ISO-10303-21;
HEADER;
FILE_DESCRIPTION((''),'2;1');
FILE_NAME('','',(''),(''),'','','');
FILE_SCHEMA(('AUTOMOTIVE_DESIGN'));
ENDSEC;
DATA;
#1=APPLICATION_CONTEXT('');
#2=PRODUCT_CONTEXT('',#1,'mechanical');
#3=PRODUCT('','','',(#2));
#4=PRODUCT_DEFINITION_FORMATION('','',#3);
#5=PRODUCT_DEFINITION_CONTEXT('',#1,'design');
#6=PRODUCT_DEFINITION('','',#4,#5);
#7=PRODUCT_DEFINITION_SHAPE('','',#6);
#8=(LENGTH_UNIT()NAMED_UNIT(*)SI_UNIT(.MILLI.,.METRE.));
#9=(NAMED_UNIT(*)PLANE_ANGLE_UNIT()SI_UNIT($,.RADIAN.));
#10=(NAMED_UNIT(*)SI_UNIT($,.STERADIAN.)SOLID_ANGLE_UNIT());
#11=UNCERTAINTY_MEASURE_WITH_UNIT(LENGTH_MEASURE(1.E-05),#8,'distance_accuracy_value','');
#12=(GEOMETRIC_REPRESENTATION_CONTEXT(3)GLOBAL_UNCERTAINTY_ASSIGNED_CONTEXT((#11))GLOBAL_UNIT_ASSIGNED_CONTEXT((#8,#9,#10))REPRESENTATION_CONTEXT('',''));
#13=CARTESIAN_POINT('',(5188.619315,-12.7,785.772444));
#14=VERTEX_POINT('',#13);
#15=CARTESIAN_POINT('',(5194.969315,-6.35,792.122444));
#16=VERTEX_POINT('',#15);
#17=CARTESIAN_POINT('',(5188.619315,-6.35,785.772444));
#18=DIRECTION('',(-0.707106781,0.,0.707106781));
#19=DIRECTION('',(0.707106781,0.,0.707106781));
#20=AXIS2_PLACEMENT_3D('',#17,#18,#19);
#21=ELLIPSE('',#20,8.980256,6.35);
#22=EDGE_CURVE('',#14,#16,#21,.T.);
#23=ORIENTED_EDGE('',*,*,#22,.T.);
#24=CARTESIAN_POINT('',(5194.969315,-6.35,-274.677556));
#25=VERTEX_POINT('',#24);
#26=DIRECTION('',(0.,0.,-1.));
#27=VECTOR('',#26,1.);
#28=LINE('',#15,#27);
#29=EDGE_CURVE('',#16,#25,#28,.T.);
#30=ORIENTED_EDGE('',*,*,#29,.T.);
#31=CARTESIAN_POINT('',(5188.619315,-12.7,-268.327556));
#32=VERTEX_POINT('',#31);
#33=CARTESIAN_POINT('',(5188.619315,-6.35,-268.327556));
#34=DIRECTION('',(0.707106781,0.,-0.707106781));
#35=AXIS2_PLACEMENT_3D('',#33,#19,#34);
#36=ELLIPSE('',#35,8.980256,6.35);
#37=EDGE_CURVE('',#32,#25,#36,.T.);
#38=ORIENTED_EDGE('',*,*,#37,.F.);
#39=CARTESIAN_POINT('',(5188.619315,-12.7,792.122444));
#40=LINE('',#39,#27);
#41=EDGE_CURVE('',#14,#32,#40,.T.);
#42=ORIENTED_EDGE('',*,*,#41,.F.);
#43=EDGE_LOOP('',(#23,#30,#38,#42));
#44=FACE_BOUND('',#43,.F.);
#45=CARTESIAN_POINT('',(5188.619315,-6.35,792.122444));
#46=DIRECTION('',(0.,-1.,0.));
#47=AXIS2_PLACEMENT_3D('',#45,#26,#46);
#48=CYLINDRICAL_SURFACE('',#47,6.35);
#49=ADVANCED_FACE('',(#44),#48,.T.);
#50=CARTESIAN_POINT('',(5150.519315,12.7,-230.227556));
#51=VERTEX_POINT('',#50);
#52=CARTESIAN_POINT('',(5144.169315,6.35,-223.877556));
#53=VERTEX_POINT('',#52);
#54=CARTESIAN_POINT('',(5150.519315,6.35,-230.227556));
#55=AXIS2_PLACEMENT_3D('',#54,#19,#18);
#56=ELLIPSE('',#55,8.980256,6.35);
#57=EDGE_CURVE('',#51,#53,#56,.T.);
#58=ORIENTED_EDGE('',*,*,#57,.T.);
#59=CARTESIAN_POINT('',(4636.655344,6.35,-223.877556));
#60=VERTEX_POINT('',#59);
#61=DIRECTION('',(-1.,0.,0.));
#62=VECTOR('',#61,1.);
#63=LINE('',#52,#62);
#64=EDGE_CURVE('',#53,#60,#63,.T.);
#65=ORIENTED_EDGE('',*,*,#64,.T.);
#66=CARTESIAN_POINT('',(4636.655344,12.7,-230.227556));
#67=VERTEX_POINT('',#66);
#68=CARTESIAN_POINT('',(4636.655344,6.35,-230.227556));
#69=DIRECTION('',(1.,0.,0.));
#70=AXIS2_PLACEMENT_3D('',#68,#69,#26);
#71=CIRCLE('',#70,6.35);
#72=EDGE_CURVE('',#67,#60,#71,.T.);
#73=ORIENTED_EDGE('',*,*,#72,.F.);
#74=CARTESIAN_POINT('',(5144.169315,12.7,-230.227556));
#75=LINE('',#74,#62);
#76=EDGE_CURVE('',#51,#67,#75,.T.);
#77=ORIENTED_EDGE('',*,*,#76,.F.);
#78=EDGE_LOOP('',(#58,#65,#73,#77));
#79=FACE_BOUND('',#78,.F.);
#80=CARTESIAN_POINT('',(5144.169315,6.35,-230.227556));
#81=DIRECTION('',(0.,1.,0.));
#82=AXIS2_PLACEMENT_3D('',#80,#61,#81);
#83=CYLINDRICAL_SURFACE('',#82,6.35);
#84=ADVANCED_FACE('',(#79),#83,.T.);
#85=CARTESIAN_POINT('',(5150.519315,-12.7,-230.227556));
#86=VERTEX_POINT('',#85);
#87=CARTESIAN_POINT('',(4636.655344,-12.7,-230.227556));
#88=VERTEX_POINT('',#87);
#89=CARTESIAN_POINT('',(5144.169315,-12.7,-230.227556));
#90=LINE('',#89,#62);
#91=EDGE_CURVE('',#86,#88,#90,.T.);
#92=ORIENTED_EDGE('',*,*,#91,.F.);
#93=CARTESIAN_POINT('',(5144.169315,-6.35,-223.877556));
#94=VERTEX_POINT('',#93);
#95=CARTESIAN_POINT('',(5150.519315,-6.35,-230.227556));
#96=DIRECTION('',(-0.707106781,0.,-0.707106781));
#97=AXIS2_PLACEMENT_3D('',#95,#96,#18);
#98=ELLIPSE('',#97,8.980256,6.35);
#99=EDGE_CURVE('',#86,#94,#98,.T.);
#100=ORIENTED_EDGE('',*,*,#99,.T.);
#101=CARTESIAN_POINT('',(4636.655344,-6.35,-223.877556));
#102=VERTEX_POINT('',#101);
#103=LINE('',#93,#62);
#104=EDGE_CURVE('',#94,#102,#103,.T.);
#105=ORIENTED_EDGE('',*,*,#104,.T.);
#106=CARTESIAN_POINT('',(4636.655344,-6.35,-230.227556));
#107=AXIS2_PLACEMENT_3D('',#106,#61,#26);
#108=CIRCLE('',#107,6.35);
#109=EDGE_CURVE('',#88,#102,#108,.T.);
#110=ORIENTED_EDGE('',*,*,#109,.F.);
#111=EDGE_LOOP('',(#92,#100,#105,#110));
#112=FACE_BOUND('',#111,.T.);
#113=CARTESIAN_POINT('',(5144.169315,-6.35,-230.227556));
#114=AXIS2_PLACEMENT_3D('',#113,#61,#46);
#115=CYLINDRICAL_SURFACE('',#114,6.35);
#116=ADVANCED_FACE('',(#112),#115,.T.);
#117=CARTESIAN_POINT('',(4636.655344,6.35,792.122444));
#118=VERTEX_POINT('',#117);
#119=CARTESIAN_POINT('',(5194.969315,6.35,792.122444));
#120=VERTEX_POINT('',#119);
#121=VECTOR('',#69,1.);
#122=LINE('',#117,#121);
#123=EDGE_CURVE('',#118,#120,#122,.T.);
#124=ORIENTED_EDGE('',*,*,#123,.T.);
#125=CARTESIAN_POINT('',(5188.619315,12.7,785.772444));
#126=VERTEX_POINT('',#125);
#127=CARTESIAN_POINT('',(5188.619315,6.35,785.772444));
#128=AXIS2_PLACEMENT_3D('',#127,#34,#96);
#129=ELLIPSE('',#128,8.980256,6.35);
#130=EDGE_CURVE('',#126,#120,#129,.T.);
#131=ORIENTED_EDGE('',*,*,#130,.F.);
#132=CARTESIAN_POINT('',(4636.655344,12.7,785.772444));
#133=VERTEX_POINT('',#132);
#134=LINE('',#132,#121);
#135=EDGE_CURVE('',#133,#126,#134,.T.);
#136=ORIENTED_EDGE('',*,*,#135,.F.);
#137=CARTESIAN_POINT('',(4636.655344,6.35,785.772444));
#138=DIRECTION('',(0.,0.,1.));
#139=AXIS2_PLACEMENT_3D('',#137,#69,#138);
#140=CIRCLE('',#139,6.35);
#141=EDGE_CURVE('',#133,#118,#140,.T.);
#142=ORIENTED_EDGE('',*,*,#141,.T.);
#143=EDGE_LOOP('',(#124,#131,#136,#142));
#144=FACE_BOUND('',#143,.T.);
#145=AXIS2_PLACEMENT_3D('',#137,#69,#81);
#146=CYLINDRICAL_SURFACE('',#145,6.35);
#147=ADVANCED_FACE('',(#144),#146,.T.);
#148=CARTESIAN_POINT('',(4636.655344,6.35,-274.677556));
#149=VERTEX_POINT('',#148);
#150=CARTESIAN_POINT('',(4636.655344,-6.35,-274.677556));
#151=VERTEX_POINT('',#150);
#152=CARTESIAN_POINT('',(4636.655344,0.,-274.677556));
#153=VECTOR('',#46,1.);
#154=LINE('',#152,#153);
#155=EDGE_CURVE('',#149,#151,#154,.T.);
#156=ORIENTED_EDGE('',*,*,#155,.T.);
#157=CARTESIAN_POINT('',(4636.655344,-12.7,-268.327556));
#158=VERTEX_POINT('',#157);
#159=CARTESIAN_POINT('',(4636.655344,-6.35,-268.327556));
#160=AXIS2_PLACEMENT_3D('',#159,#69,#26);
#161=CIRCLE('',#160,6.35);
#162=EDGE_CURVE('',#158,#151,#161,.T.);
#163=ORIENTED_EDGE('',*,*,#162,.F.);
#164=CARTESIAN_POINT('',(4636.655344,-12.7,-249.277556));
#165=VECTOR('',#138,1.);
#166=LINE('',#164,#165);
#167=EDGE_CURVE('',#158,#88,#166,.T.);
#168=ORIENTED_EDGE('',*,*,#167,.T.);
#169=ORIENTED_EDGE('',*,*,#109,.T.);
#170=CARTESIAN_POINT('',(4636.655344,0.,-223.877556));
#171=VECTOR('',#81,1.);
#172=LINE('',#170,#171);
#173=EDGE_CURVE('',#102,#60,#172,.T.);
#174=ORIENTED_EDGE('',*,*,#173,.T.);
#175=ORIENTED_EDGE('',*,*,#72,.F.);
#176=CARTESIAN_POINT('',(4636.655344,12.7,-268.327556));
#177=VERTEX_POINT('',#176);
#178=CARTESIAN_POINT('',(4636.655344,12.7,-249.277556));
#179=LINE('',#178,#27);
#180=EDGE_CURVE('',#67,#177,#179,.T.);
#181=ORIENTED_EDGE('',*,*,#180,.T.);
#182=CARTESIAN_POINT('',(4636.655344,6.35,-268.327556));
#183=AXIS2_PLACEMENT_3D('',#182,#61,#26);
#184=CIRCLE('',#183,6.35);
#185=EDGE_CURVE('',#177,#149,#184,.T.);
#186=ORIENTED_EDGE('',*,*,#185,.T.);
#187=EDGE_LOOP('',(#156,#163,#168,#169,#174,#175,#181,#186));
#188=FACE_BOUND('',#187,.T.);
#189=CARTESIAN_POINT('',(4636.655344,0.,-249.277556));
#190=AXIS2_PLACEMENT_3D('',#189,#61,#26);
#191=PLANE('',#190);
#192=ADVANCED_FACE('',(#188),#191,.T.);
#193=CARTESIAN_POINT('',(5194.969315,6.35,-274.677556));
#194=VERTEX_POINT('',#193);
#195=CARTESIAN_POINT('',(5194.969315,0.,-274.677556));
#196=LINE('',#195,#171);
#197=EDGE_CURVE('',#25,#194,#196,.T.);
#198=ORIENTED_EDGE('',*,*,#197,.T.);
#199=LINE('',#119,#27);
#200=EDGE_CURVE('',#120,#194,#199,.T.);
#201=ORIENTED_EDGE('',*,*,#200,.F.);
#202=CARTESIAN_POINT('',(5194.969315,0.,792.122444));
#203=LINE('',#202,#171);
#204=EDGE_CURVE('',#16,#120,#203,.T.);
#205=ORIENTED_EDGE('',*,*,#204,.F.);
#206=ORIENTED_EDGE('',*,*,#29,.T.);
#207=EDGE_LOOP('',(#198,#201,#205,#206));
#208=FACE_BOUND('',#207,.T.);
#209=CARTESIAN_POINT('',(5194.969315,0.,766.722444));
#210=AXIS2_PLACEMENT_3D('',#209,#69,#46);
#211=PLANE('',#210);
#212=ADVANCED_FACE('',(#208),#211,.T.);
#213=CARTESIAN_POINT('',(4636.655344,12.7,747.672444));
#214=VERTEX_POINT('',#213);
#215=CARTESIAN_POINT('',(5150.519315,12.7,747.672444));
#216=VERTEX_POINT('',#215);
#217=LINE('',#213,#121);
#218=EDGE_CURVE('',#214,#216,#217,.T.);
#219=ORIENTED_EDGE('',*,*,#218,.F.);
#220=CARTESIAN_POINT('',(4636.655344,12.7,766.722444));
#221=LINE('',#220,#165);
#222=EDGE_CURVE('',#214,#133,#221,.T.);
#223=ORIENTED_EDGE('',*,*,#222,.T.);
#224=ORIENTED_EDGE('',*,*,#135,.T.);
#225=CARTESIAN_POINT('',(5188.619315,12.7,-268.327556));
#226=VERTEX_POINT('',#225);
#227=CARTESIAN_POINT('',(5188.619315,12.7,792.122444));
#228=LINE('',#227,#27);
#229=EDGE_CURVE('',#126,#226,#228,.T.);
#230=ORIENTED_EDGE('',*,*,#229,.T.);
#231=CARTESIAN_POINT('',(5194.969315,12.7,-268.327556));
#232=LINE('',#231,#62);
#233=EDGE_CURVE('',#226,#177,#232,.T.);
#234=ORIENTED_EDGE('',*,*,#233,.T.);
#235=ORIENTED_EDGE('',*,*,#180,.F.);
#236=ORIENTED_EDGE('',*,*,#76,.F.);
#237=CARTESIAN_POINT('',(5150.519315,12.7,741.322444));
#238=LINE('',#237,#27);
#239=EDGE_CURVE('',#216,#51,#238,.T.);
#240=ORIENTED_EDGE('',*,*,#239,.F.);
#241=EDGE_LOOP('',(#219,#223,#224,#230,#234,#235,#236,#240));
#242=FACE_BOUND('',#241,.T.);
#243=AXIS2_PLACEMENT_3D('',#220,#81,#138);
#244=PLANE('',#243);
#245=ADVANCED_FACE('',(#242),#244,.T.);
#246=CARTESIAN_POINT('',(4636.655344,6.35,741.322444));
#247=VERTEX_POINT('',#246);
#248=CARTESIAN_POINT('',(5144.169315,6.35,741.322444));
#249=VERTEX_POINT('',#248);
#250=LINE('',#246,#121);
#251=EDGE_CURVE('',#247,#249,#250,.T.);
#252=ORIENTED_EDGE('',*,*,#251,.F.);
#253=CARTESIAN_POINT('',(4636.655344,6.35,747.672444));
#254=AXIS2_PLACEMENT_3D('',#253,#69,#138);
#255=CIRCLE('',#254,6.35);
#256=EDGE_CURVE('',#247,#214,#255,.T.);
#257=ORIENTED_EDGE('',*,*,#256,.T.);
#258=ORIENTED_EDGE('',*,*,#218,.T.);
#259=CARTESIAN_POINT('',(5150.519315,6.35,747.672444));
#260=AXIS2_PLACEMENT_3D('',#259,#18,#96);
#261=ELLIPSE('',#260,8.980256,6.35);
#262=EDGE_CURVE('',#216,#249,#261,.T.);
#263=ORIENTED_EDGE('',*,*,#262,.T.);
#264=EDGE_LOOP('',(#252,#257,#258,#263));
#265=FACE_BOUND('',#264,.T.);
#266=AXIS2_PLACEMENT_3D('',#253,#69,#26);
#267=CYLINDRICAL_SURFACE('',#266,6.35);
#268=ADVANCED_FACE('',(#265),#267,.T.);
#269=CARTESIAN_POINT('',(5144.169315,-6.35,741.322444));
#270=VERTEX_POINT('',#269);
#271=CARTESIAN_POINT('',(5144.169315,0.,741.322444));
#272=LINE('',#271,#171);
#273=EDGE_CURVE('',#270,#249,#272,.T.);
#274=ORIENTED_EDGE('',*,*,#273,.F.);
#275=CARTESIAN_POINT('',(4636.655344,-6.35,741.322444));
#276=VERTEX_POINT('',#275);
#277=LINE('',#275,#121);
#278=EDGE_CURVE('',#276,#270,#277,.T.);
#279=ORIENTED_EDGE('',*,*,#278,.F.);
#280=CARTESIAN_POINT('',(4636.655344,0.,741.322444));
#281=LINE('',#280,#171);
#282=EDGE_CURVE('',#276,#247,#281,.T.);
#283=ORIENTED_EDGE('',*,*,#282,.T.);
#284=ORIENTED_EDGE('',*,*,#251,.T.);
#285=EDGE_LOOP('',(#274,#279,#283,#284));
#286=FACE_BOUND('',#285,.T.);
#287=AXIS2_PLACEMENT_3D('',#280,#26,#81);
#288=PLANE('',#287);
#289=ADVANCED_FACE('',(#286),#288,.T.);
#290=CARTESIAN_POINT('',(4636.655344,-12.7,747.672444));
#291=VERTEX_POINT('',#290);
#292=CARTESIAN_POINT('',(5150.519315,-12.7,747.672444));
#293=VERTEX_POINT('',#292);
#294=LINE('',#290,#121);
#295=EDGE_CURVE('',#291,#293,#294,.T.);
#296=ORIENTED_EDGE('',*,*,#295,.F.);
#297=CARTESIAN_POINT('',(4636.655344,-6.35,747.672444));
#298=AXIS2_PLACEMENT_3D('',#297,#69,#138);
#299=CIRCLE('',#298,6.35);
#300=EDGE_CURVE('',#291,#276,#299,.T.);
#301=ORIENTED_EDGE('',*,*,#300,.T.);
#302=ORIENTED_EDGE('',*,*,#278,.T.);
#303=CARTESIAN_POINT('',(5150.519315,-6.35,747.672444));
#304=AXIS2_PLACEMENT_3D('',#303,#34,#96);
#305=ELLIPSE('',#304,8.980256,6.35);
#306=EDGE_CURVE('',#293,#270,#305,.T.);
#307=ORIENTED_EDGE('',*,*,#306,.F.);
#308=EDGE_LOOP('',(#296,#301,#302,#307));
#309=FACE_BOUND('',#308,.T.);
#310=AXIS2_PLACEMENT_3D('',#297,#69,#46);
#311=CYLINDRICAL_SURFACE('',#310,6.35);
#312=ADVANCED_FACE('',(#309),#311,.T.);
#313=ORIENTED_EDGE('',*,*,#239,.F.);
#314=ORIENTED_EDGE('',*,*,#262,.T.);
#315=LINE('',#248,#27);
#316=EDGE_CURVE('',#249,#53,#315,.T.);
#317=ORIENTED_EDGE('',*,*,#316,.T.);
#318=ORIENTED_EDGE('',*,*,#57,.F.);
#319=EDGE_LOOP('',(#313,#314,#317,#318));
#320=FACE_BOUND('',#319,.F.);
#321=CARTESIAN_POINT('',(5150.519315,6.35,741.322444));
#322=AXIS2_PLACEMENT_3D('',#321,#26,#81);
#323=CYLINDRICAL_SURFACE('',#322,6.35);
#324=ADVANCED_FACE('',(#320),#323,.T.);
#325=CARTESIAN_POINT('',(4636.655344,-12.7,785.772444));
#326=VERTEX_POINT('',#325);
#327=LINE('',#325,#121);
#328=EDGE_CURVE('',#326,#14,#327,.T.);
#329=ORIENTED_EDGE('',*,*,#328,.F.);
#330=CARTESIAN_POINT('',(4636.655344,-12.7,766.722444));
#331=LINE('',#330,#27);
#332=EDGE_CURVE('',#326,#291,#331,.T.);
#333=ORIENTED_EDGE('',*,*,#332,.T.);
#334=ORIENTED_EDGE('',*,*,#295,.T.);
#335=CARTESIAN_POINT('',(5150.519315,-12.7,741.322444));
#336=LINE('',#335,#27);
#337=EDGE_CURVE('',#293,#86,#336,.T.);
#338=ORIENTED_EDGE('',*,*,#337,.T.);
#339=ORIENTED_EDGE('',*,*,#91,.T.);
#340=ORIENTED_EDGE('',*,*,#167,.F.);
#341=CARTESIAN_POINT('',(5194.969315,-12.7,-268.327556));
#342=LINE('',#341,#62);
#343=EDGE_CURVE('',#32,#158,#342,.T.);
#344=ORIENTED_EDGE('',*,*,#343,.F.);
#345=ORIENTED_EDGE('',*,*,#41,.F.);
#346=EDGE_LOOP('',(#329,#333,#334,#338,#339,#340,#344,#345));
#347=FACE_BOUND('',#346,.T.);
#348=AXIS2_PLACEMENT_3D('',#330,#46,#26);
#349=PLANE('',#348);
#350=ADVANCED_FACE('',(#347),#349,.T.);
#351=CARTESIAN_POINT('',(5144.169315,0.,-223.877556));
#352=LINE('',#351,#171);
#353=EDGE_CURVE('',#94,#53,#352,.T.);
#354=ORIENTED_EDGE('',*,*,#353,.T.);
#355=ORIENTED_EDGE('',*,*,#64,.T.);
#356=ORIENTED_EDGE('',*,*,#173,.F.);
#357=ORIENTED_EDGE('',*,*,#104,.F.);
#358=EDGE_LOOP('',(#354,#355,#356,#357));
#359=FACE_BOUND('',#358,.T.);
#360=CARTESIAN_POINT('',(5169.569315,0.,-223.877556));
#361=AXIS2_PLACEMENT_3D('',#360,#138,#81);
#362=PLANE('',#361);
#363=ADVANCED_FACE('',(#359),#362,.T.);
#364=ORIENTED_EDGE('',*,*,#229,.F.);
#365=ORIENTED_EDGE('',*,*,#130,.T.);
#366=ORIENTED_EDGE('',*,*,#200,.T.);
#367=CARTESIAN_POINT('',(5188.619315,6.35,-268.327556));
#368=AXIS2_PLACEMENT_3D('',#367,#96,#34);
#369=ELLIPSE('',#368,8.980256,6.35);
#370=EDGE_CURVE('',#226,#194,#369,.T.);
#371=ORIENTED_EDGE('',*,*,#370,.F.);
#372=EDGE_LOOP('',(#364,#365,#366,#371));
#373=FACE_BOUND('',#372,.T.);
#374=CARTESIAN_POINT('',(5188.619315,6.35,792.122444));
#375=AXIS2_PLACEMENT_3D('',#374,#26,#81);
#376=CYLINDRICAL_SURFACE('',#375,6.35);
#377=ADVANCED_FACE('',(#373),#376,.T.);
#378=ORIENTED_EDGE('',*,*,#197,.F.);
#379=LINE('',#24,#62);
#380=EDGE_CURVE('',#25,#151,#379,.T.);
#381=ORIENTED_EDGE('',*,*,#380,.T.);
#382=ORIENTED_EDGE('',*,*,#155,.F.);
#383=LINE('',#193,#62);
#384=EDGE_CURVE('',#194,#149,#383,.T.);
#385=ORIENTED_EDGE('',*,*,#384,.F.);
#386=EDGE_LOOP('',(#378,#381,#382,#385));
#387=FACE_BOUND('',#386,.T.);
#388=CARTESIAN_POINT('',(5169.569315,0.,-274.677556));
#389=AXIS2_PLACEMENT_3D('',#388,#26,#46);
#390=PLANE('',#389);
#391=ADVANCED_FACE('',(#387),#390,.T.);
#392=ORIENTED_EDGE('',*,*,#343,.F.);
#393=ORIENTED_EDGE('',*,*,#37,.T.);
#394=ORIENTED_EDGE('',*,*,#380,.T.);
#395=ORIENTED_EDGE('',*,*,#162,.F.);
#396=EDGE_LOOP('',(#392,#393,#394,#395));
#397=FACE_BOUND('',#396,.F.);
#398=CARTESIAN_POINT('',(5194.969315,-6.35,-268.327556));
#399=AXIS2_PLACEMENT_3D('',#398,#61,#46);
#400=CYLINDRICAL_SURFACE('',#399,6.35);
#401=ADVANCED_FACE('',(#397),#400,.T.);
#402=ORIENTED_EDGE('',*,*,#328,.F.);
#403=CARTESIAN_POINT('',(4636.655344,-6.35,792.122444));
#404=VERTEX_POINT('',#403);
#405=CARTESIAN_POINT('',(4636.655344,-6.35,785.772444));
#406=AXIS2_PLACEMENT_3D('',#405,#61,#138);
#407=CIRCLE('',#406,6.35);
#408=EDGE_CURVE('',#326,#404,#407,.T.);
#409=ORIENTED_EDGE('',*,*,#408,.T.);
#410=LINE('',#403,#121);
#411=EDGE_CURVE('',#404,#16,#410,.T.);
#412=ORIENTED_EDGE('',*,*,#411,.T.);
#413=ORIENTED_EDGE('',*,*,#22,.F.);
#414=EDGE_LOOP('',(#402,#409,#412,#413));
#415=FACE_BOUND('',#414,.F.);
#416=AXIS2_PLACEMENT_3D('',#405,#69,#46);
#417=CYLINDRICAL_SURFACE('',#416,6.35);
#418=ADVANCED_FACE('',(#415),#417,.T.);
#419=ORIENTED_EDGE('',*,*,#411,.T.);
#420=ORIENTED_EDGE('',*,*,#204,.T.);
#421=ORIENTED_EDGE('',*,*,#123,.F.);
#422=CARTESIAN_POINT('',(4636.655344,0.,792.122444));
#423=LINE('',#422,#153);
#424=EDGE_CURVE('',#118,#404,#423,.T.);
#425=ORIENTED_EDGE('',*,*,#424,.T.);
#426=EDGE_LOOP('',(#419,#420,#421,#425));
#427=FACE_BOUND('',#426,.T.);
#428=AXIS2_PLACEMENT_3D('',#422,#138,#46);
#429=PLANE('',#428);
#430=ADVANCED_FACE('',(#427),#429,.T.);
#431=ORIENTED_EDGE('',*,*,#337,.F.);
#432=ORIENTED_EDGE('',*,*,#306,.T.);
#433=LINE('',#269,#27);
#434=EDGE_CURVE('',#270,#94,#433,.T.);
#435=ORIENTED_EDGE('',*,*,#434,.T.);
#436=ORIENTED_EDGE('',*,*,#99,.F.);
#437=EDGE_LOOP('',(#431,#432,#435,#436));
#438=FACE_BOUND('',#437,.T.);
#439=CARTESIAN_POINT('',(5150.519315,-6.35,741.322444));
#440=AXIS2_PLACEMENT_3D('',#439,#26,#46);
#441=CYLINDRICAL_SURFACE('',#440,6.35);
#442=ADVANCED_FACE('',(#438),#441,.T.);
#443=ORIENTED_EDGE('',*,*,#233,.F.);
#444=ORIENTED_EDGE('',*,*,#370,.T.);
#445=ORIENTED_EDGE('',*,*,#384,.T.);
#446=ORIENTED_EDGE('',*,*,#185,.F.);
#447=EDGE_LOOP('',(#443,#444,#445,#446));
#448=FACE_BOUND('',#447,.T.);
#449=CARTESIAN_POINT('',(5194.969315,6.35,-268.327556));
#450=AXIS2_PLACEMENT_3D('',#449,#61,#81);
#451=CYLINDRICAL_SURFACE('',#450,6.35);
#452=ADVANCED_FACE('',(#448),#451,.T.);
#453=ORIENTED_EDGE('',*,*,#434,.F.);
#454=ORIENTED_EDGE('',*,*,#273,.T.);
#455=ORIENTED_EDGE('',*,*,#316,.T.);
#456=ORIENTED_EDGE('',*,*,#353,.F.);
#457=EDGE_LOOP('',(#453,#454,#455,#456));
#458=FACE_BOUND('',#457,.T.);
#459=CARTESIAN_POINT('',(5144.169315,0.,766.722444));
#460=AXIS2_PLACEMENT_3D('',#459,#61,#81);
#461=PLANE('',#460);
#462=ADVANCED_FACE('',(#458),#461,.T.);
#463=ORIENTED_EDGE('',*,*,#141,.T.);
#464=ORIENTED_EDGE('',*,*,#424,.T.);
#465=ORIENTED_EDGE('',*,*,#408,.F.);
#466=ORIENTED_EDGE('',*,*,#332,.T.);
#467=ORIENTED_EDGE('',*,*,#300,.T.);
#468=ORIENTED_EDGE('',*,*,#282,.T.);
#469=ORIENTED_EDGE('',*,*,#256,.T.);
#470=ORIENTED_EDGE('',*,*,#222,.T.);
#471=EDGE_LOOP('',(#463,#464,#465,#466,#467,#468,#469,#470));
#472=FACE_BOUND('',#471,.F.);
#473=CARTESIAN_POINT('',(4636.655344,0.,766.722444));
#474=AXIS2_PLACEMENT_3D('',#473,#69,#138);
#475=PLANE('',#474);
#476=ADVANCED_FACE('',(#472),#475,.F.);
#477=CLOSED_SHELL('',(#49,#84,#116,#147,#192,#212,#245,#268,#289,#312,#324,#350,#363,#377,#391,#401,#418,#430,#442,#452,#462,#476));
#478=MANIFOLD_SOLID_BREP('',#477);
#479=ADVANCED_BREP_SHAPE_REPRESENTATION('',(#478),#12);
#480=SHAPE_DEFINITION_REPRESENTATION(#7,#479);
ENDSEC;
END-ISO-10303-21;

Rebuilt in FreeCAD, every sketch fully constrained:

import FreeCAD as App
import Part
import Sketcher
Q = App.Units.Quantity


def edges_at(feature, points):
    """Names of the edges that pass closest to the given points."""
    edges = feature.Shape.Edges
    near = lambda p: min(range(len(edges)), key=lambda i: edges[i].distToShape(Part.Vertex(*p))[0])
    return sorted({f"Edge{near(p) + 1}" for p in points})


def add_polygon(sketch, points):
    """Adds a closed chain of lines whose ends are joined by coincident constraints."""
    first, n = sketch.GeometryCount, len(points)
    for a, b in zip(points, points[1:] + points[:1]):
        sketch.addGeometry(Part.LineSegment(App.Vector(*a, 0), App.Vector(*b, 0)), False)
    for i in range(n):
        sketch.addConstraint(Sketcher.Constraint("Coincident", first + i, 2, first + (i + 1) % n, 1))

doc = App.newDocument("Part")
body = doc.addObject("PartDesign::Body", "Body")

sketch1 = body.newObject("Sketcher::SketchObject", "Sketch")
sketch1.AttachmentSupport = (doc.getObject("YZ_Plane"), [""])
sketch1.MapMode = "FlatFace"
sketch1.AttachmentOffset = App.Placement(App.Vector(0, 0, 4636.655344), App.Rotation())
add_polygon(sketch1, [(-13, 792), (-13, 741), (13, 741), (13, 792)])
sketch1.addConstraint([
    Sketcher.Constraint("Vertical", 0),
    Sketcher.Constraint("Horizontal", 1),
    Sketcher.Constraint("Vertical", 2),
    Sketcher.Constraint("Horizontal", 3),
    Sketcher.Constraint("DistanceX", 1, 1, 1, 2, Q("1 in")),
    Sketcher.Constraint("DistanceY", 0, 2, 0, 1, Q("2 in")),
    Sketcher.Constraint("DistanceX", 0, 2, -1, 1, Q("0.5 in")),
    Sketcher.Constraint("DistanceY", -1, 1, 0, 2, 741.322444),
])

sketch2 = body.newObject("Sketcher::SketchObject", "Sketch001")
sketch2.AttachmentSupport = (doc.getObject("XZ_Plane"), [""])
sketch2.MapMode = "FlatFace"
sketch2.addGeometry([
    Part.LineSegment(App.Vector(4637, 767, 0), App.Vector(5170, 767, 0)),
    Part.LineSegment(App.Vector(5170, 767, 0), App.Vector(5170, -249, 0)),
    Part.LineSegment(App.Vector(5170, -249, 0), App.Vector(4637, -249, 0)),
], False)
sketch2.addConstraint([
    Sketcher.Constraint("Coincident", 0, 2, 1, 1),
    Sketcher.Constraint("Coincident", 1, 2, 2, 1),
    Sketcher.Constraint("Horizontal", 0),
    Sketcher.Constraint("Vertical", 1),
    Sketcher.Constraint("Horizontal", 2),
    Sketcher.Constraint("Vertical", 0, 1, 2, 2),
    Sketcher.Constraint("DistanceY", 1, 2, 1, 1, Q("40 in")),
    Sketcher.Constraint("DistanceX", 0, 1, 0, 2, 532.913971),
    Sketcher.Constraint("DistanceX", -1, 1, 0, 1, 4636.655344),
    Sketcher.Constraint("DistanceY", -1, 1, 0, 1, 766.722444),
])
doc.recompute()

additivepipe = body.newObject("PartDesign::AdditivePipe", "AdditivePipe")
additivepipe.Profile = sketch1
additivepipe.Spine = (sketch2, ["Edge1", "Edge2", "Edge3"])
additivepipe.Transition = "Right corner"
doc.recompute()

fillet = body.newObject("PartDesign::Fillet", "Fillet")
fillet.Base = (additivepipe, edges_at(additivepipe, [
    (4890.412, 12.7, -223.878),
    (5144.169, 12.7, 258.722),
    (5194.969, 12.7, 258.722),
    (4915.812, 12.7, -274.678),
    (4890.412, -12.7, -223.878),
    (5144.169, -12.7, 258.722),
    (4890.412, 12.7, 741.322),
    (4915.812, 12.7, 792.122),
    (4915.812, -12.7, 792.122),
    (4890.412, -12.7, 741.322),
    (5194.969, -12.7, 258.722),
    (4915.812, -12.7, -274.678),
]))
fillet.Radius = Q("0.25 in")

doc.recompute()
